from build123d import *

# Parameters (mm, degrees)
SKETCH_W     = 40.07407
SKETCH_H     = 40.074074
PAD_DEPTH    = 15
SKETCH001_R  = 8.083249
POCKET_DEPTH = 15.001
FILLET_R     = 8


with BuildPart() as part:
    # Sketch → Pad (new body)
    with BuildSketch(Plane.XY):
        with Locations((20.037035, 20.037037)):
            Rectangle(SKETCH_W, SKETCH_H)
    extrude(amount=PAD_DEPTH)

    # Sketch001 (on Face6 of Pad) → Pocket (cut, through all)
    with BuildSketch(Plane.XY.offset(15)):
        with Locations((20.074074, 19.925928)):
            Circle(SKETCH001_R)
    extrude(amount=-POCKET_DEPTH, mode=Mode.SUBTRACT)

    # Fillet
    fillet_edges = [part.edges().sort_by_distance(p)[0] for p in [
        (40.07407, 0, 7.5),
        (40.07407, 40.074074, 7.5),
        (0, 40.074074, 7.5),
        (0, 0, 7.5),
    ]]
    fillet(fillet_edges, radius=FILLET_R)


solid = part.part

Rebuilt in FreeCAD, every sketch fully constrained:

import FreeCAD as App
import Part
import Sketcher

V = App.Vector
Q = App.Units.Quantity


def edges_at(feature, points):
    """Names of the edges that pass closest to the given points."""
    edges = feature.Shape.Edges
    near = lambda p: min(range(len(edges)), key=lambda i: edges[i].distToShape(Part.Vertex(*p))[0])
    return sorted({f"Edge{near(p) + 1}" for p in points})

doc = App.newDocument("Part")
body = doc.addObject("PartDesign::Body", "Body")

# Sketch on XY plane
sketch1 = doc.addObject("Sketcher::SketchObject", "Sketch")
body.addObject(sketch1)
sketch1.AttachmentSupport = (doc.XY_Plane, [""])
sketch1.MapMode = "FlatFace"
sketch1.addGeometry(Part.LineSegment(V(0, 40.074074, 0), V(0, 0, 0)), False)
sketch1.addGeometry(Part.LineSegment(V(0, 0, 0), V(40.07407, 0, 0)), False)
sketch1.addGeometry(Part.LineSegment(V(40.07407, 0, 0), V(40.07407, 40.074074, 0)), False)
sketch1.addGeometry(Part.LineSegment(V(40.07407, 40.074074, 0), V(0, 40.074074, 0)), False)
sketch1.addConstraint(Sketcher.Constraint("Coincident", 0, 2, 1, 1))
sketch1.addConstraint(Sketcher.Constraint("Coincident", 1, 2, 2, 1))
sketch1.addConstraint(Sketcher.Constraint("Coincident", 2, 2, 3, 1))
sketch1.addConstraint(Sketcher.Constraint("Coincident", 3, 2, 0, 1))
sketch1.addConstraint(Sketcher.Constraint("Vertical", 0))
sketch1.addConstraint(Sketcher.Constraint("Horizontal", 1))
sketch1.addConstraint(Sketcher.Constraint("Vertical", 2))
sketch1.addConstraint(Sketcher.Constraint("Horizontal", 3))
sketch1.addConstraint(Sketcher.Constraint("Coincident", 0, 2, -1, 1))
sketch1.addConstraint(Sketcher.Constraint("DistanceX", 1, 1, 1, 2, Q("40.07407 mm")))
sketch1.addConstraint(Sketcher.Constraint("DistanceY", 0, 2, 0, 1, Q("40.074074 mm")))
pad1 = doc.addObject("PartDesign::Pad", "Pad")
body.addObject(pad1)
pad1.Profile = sketch1
pad1.Length = 15

# Sketch on XY plane
sketch2 = doc.addObject("Sketcher::SketchObject", "Sketch001")
body.addObject(sketch2)
sketch2.AttachmentSupport = (doc.XY_Plane, [""])
sketch2.MapMode = "FlatFace"
sketch2.AttachmentOffset = App.Placement(V(0, 0, 15), App.Rotation())
sketch2.addGeometry(Part.Circle(V(20.074074, 19.925928, 0), V(0, 0, 1), 8.083249), False)
sketch2.addConstraint(Sketcher.Constraint("Diameter", 0, Q("16.166498 mm")))
sketch2.addConstraint(Sketcher.Constraint("DistanceX", -1, 1, 0, 3, Q("20.074074 mm")))
sketch2.addConstraint(Sketcher.Constraint("DistanceY", -1, 1, 0, 3, Q("19.925928 mm")))
pocket1 = doc.addObject("PartDesign::Pocket", "Pocket")
body.addObject(pocket1)
pocket1.Profile = sketch2
pocket1.Type = "ThroughAll"
doc.recompute()

fillet = doc.addObject("PartDesign::Fillet", "Fillet")
body.addObject(fillet)
fillet.Base = (pocket1, edges_at(pocket1, [
    (40.074, 0, 7.5),
    (40.074, 40.074, 7.5),
    (0, 40.074, 7.5),
    (0, 0, 7.5),
]))
fillet.Radius = 8

doc.recompute()
